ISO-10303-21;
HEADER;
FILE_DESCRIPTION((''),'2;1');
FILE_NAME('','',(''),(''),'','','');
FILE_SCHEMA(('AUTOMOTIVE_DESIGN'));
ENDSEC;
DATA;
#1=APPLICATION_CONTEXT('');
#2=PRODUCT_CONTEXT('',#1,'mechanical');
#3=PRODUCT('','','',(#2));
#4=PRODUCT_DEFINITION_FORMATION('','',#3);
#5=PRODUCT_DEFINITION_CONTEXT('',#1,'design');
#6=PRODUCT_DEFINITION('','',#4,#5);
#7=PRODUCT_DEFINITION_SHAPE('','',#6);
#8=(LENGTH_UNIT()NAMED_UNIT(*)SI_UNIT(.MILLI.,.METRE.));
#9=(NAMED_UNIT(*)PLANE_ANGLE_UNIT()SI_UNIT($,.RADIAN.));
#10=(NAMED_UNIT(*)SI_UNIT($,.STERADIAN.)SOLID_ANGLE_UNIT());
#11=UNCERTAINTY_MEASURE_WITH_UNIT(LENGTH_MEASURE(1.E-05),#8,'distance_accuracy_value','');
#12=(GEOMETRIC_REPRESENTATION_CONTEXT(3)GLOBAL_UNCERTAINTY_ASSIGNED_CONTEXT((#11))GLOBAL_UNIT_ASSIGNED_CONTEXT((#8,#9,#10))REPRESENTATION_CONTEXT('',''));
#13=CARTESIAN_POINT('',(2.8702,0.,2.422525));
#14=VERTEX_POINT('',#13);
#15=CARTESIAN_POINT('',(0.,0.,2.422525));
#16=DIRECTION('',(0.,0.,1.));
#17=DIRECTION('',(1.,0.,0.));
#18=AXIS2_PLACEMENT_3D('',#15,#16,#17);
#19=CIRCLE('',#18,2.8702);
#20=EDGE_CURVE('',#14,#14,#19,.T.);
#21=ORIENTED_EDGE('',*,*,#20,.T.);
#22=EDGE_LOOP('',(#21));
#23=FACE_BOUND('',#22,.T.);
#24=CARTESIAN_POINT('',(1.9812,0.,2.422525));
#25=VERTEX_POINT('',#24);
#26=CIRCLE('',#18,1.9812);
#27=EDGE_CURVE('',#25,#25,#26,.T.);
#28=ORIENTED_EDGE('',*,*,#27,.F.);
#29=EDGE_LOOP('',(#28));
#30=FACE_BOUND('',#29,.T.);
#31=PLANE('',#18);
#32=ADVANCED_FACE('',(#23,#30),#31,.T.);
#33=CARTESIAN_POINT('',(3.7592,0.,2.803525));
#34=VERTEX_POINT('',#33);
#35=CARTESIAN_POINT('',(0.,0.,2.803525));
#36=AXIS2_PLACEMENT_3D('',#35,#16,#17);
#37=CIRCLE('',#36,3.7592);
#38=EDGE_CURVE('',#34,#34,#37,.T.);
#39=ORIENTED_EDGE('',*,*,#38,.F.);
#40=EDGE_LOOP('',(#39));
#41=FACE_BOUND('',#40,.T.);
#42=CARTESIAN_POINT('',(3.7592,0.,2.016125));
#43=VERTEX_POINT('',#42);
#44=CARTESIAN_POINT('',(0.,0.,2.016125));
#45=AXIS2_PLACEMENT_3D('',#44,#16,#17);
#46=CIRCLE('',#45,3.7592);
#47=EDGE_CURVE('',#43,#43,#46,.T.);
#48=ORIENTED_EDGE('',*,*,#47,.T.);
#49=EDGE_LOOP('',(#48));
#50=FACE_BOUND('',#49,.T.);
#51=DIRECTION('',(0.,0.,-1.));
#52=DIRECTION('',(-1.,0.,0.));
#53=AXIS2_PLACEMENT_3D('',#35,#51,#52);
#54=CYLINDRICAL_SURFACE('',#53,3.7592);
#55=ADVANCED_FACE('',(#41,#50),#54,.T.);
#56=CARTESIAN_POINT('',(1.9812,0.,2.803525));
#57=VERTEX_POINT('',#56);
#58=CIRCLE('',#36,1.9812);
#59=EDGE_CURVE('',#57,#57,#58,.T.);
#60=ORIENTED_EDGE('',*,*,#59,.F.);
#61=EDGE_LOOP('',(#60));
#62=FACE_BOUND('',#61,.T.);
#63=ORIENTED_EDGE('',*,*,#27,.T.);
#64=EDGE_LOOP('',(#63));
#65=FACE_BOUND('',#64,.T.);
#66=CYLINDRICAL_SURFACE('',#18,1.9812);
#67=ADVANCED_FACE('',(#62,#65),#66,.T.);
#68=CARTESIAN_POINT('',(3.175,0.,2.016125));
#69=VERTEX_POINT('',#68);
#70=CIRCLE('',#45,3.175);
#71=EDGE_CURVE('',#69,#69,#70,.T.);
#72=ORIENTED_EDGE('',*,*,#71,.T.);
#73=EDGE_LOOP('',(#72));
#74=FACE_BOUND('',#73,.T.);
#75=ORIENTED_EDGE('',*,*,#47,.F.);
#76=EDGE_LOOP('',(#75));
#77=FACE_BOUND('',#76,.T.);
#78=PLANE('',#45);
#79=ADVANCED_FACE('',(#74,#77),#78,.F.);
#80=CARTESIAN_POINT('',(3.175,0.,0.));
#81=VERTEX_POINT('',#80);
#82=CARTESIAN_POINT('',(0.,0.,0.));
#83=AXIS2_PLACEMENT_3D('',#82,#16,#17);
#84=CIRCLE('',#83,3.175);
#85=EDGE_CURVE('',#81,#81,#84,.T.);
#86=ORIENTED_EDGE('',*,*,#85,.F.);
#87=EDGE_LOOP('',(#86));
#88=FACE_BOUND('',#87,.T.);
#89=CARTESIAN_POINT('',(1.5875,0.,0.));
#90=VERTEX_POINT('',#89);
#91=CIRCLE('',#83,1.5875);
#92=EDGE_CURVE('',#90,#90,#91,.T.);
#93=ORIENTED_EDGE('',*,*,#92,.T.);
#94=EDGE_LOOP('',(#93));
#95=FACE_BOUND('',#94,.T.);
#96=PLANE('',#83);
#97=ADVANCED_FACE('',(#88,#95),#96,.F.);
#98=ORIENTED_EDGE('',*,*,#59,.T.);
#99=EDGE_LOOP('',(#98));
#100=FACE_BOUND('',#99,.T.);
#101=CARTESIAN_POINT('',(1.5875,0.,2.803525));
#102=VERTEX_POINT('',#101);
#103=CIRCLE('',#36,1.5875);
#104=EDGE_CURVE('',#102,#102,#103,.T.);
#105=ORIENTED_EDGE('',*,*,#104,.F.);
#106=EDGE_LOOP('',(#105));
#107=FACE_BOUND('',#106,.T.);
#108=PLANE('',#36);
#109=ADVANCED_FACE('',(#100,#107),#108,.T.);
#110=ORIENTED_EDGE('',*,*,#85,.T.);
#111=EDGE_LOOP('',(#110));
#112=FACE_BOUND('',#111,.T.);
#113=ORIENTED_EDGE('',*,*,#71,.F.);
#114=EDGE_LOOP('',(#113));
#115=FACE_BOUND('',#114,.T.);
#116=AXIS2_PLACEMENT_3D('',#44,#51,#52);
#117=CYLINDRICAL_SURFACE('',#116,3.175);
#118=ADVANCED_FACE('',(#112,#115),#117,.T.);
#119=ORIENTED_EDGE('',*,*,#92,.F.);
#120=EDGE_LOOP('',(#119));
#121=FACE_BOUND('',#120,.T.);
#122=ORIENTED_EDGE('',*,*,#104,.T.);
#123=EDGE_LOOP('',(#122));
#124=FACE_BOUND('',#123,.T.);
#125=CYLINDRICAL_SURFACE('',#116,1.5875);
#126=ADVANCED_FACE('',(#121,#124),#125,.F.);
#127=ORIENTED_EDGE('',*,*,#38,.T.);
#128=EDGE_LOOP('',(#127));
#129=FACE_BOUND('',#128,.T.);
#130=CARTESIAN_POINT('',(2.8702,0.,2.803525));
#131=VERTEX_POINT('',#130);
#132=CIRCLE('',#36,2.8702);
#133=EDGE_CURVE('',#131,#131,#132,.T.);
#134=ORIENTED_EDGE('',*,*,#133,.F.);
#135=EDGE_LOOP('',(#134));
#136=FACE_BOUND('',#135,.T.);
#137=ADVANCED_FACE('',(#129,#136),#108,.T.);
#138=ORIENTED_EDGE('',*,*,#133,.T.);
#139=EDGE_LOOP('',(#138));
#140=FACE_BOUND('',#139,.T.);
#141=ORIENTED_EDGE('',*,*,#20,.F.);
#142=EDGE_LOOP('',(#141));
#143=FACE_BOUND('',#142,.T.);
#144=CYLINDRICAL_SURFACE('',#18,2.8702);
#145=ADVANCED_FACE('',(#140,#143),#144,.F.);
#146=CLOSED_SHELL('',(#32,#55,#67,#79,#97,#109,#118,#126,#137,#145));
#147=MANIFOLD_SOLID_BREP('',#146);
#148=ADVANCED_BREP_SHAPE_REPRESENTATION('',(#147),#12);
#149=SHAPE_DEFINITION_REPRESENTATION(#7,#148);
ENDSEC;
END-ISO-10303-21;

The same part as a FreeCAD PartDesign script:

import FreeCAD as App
import Part
import Sketcher
Q = App.Units.Quantity

doc = App.newDocument("Part")
body = doc.addObject("PartDesign::Body", "Body")

# Sketch on XY plane
sketch1 = body.newObject("Sketcher::SketchObject", "Sketch")
sketch1.AttachmentSupport = (doc.getObject("XY_Plane"), [""])
sketch1.MapMode = "FlatFace"
sketch1.addGeometry([
    Part.Circle(App.Vector(0, 0, 0), App.Vector(0, 0, 1), 3.2),
    Part.Circle(App.Vector(0, 0, 0), App.Vector(0, 0, 1), 1.6),
], False)
sketch1.addConstraint([
    Sketcher.Constraint("Coincident", 0, 3, -1, 1),
    Sketcher.Constraint("Coincident", 1, 3, -1, 1),
    Sketcher.Constraint("Diameter", 0, Q("0.25 in")),
    Sketcher.Constraint("Diameter", 1, Q("0.125 in")),
])
pad1 = body.newObject("PartDesign::Pad", "Pad")
pad1.Profile = sketch1
pad1.Length = 2.016125

# Sketch on XY plane
sketch2 = body.newObject("Sketcher::SketchObject", "Sketch001")
sketch2.AttachmentSupport = (doc.getObject("XY_Plane"), [""])
sketch2.MapMode = "FlatFace"
sketch2.AttachmentOffset = App.Placement(App.Vector(0, 0, 2.016125), App.Rotation())
sketch2.addGeometry([
    Part.Circle(App.Vector(0, 0, 0), App.Vector(0, 0, 1), 3.8),
    Part.Circle(App.Vector(0, 0, 0), App.Vector(0, 0, 1), 1.6),
], False)
sketch2.addConstraint([
    Sketcher.Constraint("Coincident", 0, 3, -1, 1),
    Sketcher.Constraint("Coincident", 1, 3, -1, 1),
    Sketcher.Constraint("Diameter", 0, Q("0.296 in")),
    Sketcher.Constraint("Diameter", 1, Q("0.125 in")),
])
pad2 = body.newObject("PartDesign::Pad", "Pad001")
pad2.Profile = sketch2
pad2.Length = Q("0.031 in")

# Sketch on XY plane
sketch3 = body.newObject("Sketcher::SketchObject", "Sketch002")
sketch3.AttachmentSupport = (doc.getObject("XY_Plane"), [""])
sketch3.MapMode = "FlatFace"
sketch3.AttachmentOffset = App.Placement(App.Vector(0, 0, 2.803525), App.Rotation())
sketch3.addGeometry([
    Part.Circle(App.Vector(0, 0, 0), App.Vector(0, 0, 1), 2.9),
    Part.Circle(App.Vector(0, 0, 0), App.Vector(0, 0, 1), 2),
], False)
sketch3.addConstraint([
    Sketcher.Constraint("Coincident", 0, 3, -1, 1),
    Sketcher.Constraint("Coincident", 1, 3, -1, 1),
    Sketcher.Constraint("Diameter", 0, Q("0.226 in")),
    Sketcher.Constraint("Diameter", 1, Q("0.156 in")),
])
pocket1 = body.newObject("PartDesign::Pocket", "Pocket")
pocket1.Profile = sketch3
pocket1.Length = Q("0.015 in")

doc.recompute()
